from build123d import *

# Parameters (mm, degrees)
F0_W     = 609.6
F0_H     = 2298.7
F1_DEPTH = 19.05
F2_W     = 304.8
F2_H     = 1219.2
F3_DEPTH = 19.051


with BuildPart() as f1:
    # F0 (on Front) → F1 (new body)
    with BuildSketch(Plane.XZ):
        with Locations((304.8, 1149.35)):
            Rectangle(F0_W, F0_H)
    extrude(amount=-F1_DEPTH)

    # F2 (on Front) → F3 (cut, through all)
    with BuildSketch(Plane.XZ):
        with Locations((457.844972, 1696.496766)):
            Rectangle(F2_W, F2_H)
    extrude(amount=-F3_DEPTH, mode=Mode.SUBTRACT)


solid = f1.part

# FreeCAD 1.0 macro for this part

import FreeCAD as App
import Part
import Sketcher

V = App.Vector
Q = App.Units.Quantity

doc = App.newDocument("Part")
body = doc.addObject("PartDesign::Body", "Body")

# Sketch on XZ plane
sketch1 = body.newObject("Sketcher::SketchObject", "Sketch")
sketch1.AttachmentSupport = (doc.getObject("XZ_Plane"), [""])
sketch1.MapMode = "FlatFace"
sketch1.addGeometry([
    Part.LineSegment(V(0, 2299, 0), V(0, 0, 0)),
    Part.LineSegment(V(0, 0, 0), V(610, 0, 0)),
    Part.LineSegment(V(610, 0, 0), V(610, 2299, 0)),
    Part.LineSegment(V(610, 2299, 0), V(0, 2299, 0)),
], False)
sketch1.addConstraint([
    Sketcher.Constraint("Coincident", 0, 2, 1, 1),
    Sketcher.Constraint("Coincident", 1, 2, 2, 1),
    Sketcher.Constraint("Coincident", 2, 2, 3, 1),
    Sketcher.Constraint("Coincident", 3, 2, 0, 1),
    Sketcher.Constraint("Vertical", 0),
    Sketcher.Constraint("Horizontal", 1),
    Sketcher.Constraint("Vertical", 2),
    Sketcher.Constraint("Horizontal", 3),
    Sketcher.Constraint("Coincident", 0, 2, -1, 1),
    Sketcher.Constraint("DistanceX", 1, 1, 1, 2, Q("24 in")),
    Sketcher.Constraint("DistanceY", 0, 2, 0, 1, Q("90.5 in")),
])
pad1 = body.newObject("PartDesign::Pad", "Pad")
pad1.Profile = sketch1
pad1.Length = Q("0.75 in")
pad1.Reversed = True

# Sketch on XZ plane
sketch2 = body.newObject("Sketcher::SketchObject", "Sketch001")
sketch2.AttachmentSupport = (doc.getObject("XZ_Plane"), [""])
sketch2.MapMode = "FlatFace"
sketch2.addGeometry([
    Part.LineSegment(V(305, 2306, 0), V(305, 1087, 0)),
    Part.LineSegment(V(305, 1087, 0), V(610, 1087, 0)),
    Part.LineSegment(V(610, 1087, 0), V(610, 2306, 0)),
    Part.LineSegment(V(610, 2306, 0), V(305, 2306, 0)),
], False)
sketch2.addConstraint([
    Sketcher.Constraint("Coincident", 0, 2, 1, 1),
    Sketcher.Constraint("Coincident", 1, 2, 2, 1),
    Sketcher.Constraint("Coincident", 2, 2, 3, 1),
    Sketcher.Constraint("Coincident", 3, 2, 0, 1),
    Sketcher.Constraint("Vertical", 0),
    Sketcher.Constraint("Horizontal", 1),
    Sketcher.Constraint("Vertical", 2),
    Sketcher.Constraint("Horizontal", 3),
    Sketcher.Constraint("DistanceX", 1, 1, 1, 2, Q("12 in")),
    Sketcher.Constraint("DistanceY", 0, 2, 0, 1, Q("48 in")),
    Sketcher.Constraint("DistanceX", -1, 1, 0, 2, Q("305.444972 mm")),
    Sketcher.Constraint("DistanceY", -1, 1, 0, 2, Q("1086.896766 mm")),
])
pocket1 = body.newObject("PartDesign::Pocket", "Pocket")
pocket1.Profile = sketch2
pocket1.Type = "ThroughAll"

doc.recompute()
